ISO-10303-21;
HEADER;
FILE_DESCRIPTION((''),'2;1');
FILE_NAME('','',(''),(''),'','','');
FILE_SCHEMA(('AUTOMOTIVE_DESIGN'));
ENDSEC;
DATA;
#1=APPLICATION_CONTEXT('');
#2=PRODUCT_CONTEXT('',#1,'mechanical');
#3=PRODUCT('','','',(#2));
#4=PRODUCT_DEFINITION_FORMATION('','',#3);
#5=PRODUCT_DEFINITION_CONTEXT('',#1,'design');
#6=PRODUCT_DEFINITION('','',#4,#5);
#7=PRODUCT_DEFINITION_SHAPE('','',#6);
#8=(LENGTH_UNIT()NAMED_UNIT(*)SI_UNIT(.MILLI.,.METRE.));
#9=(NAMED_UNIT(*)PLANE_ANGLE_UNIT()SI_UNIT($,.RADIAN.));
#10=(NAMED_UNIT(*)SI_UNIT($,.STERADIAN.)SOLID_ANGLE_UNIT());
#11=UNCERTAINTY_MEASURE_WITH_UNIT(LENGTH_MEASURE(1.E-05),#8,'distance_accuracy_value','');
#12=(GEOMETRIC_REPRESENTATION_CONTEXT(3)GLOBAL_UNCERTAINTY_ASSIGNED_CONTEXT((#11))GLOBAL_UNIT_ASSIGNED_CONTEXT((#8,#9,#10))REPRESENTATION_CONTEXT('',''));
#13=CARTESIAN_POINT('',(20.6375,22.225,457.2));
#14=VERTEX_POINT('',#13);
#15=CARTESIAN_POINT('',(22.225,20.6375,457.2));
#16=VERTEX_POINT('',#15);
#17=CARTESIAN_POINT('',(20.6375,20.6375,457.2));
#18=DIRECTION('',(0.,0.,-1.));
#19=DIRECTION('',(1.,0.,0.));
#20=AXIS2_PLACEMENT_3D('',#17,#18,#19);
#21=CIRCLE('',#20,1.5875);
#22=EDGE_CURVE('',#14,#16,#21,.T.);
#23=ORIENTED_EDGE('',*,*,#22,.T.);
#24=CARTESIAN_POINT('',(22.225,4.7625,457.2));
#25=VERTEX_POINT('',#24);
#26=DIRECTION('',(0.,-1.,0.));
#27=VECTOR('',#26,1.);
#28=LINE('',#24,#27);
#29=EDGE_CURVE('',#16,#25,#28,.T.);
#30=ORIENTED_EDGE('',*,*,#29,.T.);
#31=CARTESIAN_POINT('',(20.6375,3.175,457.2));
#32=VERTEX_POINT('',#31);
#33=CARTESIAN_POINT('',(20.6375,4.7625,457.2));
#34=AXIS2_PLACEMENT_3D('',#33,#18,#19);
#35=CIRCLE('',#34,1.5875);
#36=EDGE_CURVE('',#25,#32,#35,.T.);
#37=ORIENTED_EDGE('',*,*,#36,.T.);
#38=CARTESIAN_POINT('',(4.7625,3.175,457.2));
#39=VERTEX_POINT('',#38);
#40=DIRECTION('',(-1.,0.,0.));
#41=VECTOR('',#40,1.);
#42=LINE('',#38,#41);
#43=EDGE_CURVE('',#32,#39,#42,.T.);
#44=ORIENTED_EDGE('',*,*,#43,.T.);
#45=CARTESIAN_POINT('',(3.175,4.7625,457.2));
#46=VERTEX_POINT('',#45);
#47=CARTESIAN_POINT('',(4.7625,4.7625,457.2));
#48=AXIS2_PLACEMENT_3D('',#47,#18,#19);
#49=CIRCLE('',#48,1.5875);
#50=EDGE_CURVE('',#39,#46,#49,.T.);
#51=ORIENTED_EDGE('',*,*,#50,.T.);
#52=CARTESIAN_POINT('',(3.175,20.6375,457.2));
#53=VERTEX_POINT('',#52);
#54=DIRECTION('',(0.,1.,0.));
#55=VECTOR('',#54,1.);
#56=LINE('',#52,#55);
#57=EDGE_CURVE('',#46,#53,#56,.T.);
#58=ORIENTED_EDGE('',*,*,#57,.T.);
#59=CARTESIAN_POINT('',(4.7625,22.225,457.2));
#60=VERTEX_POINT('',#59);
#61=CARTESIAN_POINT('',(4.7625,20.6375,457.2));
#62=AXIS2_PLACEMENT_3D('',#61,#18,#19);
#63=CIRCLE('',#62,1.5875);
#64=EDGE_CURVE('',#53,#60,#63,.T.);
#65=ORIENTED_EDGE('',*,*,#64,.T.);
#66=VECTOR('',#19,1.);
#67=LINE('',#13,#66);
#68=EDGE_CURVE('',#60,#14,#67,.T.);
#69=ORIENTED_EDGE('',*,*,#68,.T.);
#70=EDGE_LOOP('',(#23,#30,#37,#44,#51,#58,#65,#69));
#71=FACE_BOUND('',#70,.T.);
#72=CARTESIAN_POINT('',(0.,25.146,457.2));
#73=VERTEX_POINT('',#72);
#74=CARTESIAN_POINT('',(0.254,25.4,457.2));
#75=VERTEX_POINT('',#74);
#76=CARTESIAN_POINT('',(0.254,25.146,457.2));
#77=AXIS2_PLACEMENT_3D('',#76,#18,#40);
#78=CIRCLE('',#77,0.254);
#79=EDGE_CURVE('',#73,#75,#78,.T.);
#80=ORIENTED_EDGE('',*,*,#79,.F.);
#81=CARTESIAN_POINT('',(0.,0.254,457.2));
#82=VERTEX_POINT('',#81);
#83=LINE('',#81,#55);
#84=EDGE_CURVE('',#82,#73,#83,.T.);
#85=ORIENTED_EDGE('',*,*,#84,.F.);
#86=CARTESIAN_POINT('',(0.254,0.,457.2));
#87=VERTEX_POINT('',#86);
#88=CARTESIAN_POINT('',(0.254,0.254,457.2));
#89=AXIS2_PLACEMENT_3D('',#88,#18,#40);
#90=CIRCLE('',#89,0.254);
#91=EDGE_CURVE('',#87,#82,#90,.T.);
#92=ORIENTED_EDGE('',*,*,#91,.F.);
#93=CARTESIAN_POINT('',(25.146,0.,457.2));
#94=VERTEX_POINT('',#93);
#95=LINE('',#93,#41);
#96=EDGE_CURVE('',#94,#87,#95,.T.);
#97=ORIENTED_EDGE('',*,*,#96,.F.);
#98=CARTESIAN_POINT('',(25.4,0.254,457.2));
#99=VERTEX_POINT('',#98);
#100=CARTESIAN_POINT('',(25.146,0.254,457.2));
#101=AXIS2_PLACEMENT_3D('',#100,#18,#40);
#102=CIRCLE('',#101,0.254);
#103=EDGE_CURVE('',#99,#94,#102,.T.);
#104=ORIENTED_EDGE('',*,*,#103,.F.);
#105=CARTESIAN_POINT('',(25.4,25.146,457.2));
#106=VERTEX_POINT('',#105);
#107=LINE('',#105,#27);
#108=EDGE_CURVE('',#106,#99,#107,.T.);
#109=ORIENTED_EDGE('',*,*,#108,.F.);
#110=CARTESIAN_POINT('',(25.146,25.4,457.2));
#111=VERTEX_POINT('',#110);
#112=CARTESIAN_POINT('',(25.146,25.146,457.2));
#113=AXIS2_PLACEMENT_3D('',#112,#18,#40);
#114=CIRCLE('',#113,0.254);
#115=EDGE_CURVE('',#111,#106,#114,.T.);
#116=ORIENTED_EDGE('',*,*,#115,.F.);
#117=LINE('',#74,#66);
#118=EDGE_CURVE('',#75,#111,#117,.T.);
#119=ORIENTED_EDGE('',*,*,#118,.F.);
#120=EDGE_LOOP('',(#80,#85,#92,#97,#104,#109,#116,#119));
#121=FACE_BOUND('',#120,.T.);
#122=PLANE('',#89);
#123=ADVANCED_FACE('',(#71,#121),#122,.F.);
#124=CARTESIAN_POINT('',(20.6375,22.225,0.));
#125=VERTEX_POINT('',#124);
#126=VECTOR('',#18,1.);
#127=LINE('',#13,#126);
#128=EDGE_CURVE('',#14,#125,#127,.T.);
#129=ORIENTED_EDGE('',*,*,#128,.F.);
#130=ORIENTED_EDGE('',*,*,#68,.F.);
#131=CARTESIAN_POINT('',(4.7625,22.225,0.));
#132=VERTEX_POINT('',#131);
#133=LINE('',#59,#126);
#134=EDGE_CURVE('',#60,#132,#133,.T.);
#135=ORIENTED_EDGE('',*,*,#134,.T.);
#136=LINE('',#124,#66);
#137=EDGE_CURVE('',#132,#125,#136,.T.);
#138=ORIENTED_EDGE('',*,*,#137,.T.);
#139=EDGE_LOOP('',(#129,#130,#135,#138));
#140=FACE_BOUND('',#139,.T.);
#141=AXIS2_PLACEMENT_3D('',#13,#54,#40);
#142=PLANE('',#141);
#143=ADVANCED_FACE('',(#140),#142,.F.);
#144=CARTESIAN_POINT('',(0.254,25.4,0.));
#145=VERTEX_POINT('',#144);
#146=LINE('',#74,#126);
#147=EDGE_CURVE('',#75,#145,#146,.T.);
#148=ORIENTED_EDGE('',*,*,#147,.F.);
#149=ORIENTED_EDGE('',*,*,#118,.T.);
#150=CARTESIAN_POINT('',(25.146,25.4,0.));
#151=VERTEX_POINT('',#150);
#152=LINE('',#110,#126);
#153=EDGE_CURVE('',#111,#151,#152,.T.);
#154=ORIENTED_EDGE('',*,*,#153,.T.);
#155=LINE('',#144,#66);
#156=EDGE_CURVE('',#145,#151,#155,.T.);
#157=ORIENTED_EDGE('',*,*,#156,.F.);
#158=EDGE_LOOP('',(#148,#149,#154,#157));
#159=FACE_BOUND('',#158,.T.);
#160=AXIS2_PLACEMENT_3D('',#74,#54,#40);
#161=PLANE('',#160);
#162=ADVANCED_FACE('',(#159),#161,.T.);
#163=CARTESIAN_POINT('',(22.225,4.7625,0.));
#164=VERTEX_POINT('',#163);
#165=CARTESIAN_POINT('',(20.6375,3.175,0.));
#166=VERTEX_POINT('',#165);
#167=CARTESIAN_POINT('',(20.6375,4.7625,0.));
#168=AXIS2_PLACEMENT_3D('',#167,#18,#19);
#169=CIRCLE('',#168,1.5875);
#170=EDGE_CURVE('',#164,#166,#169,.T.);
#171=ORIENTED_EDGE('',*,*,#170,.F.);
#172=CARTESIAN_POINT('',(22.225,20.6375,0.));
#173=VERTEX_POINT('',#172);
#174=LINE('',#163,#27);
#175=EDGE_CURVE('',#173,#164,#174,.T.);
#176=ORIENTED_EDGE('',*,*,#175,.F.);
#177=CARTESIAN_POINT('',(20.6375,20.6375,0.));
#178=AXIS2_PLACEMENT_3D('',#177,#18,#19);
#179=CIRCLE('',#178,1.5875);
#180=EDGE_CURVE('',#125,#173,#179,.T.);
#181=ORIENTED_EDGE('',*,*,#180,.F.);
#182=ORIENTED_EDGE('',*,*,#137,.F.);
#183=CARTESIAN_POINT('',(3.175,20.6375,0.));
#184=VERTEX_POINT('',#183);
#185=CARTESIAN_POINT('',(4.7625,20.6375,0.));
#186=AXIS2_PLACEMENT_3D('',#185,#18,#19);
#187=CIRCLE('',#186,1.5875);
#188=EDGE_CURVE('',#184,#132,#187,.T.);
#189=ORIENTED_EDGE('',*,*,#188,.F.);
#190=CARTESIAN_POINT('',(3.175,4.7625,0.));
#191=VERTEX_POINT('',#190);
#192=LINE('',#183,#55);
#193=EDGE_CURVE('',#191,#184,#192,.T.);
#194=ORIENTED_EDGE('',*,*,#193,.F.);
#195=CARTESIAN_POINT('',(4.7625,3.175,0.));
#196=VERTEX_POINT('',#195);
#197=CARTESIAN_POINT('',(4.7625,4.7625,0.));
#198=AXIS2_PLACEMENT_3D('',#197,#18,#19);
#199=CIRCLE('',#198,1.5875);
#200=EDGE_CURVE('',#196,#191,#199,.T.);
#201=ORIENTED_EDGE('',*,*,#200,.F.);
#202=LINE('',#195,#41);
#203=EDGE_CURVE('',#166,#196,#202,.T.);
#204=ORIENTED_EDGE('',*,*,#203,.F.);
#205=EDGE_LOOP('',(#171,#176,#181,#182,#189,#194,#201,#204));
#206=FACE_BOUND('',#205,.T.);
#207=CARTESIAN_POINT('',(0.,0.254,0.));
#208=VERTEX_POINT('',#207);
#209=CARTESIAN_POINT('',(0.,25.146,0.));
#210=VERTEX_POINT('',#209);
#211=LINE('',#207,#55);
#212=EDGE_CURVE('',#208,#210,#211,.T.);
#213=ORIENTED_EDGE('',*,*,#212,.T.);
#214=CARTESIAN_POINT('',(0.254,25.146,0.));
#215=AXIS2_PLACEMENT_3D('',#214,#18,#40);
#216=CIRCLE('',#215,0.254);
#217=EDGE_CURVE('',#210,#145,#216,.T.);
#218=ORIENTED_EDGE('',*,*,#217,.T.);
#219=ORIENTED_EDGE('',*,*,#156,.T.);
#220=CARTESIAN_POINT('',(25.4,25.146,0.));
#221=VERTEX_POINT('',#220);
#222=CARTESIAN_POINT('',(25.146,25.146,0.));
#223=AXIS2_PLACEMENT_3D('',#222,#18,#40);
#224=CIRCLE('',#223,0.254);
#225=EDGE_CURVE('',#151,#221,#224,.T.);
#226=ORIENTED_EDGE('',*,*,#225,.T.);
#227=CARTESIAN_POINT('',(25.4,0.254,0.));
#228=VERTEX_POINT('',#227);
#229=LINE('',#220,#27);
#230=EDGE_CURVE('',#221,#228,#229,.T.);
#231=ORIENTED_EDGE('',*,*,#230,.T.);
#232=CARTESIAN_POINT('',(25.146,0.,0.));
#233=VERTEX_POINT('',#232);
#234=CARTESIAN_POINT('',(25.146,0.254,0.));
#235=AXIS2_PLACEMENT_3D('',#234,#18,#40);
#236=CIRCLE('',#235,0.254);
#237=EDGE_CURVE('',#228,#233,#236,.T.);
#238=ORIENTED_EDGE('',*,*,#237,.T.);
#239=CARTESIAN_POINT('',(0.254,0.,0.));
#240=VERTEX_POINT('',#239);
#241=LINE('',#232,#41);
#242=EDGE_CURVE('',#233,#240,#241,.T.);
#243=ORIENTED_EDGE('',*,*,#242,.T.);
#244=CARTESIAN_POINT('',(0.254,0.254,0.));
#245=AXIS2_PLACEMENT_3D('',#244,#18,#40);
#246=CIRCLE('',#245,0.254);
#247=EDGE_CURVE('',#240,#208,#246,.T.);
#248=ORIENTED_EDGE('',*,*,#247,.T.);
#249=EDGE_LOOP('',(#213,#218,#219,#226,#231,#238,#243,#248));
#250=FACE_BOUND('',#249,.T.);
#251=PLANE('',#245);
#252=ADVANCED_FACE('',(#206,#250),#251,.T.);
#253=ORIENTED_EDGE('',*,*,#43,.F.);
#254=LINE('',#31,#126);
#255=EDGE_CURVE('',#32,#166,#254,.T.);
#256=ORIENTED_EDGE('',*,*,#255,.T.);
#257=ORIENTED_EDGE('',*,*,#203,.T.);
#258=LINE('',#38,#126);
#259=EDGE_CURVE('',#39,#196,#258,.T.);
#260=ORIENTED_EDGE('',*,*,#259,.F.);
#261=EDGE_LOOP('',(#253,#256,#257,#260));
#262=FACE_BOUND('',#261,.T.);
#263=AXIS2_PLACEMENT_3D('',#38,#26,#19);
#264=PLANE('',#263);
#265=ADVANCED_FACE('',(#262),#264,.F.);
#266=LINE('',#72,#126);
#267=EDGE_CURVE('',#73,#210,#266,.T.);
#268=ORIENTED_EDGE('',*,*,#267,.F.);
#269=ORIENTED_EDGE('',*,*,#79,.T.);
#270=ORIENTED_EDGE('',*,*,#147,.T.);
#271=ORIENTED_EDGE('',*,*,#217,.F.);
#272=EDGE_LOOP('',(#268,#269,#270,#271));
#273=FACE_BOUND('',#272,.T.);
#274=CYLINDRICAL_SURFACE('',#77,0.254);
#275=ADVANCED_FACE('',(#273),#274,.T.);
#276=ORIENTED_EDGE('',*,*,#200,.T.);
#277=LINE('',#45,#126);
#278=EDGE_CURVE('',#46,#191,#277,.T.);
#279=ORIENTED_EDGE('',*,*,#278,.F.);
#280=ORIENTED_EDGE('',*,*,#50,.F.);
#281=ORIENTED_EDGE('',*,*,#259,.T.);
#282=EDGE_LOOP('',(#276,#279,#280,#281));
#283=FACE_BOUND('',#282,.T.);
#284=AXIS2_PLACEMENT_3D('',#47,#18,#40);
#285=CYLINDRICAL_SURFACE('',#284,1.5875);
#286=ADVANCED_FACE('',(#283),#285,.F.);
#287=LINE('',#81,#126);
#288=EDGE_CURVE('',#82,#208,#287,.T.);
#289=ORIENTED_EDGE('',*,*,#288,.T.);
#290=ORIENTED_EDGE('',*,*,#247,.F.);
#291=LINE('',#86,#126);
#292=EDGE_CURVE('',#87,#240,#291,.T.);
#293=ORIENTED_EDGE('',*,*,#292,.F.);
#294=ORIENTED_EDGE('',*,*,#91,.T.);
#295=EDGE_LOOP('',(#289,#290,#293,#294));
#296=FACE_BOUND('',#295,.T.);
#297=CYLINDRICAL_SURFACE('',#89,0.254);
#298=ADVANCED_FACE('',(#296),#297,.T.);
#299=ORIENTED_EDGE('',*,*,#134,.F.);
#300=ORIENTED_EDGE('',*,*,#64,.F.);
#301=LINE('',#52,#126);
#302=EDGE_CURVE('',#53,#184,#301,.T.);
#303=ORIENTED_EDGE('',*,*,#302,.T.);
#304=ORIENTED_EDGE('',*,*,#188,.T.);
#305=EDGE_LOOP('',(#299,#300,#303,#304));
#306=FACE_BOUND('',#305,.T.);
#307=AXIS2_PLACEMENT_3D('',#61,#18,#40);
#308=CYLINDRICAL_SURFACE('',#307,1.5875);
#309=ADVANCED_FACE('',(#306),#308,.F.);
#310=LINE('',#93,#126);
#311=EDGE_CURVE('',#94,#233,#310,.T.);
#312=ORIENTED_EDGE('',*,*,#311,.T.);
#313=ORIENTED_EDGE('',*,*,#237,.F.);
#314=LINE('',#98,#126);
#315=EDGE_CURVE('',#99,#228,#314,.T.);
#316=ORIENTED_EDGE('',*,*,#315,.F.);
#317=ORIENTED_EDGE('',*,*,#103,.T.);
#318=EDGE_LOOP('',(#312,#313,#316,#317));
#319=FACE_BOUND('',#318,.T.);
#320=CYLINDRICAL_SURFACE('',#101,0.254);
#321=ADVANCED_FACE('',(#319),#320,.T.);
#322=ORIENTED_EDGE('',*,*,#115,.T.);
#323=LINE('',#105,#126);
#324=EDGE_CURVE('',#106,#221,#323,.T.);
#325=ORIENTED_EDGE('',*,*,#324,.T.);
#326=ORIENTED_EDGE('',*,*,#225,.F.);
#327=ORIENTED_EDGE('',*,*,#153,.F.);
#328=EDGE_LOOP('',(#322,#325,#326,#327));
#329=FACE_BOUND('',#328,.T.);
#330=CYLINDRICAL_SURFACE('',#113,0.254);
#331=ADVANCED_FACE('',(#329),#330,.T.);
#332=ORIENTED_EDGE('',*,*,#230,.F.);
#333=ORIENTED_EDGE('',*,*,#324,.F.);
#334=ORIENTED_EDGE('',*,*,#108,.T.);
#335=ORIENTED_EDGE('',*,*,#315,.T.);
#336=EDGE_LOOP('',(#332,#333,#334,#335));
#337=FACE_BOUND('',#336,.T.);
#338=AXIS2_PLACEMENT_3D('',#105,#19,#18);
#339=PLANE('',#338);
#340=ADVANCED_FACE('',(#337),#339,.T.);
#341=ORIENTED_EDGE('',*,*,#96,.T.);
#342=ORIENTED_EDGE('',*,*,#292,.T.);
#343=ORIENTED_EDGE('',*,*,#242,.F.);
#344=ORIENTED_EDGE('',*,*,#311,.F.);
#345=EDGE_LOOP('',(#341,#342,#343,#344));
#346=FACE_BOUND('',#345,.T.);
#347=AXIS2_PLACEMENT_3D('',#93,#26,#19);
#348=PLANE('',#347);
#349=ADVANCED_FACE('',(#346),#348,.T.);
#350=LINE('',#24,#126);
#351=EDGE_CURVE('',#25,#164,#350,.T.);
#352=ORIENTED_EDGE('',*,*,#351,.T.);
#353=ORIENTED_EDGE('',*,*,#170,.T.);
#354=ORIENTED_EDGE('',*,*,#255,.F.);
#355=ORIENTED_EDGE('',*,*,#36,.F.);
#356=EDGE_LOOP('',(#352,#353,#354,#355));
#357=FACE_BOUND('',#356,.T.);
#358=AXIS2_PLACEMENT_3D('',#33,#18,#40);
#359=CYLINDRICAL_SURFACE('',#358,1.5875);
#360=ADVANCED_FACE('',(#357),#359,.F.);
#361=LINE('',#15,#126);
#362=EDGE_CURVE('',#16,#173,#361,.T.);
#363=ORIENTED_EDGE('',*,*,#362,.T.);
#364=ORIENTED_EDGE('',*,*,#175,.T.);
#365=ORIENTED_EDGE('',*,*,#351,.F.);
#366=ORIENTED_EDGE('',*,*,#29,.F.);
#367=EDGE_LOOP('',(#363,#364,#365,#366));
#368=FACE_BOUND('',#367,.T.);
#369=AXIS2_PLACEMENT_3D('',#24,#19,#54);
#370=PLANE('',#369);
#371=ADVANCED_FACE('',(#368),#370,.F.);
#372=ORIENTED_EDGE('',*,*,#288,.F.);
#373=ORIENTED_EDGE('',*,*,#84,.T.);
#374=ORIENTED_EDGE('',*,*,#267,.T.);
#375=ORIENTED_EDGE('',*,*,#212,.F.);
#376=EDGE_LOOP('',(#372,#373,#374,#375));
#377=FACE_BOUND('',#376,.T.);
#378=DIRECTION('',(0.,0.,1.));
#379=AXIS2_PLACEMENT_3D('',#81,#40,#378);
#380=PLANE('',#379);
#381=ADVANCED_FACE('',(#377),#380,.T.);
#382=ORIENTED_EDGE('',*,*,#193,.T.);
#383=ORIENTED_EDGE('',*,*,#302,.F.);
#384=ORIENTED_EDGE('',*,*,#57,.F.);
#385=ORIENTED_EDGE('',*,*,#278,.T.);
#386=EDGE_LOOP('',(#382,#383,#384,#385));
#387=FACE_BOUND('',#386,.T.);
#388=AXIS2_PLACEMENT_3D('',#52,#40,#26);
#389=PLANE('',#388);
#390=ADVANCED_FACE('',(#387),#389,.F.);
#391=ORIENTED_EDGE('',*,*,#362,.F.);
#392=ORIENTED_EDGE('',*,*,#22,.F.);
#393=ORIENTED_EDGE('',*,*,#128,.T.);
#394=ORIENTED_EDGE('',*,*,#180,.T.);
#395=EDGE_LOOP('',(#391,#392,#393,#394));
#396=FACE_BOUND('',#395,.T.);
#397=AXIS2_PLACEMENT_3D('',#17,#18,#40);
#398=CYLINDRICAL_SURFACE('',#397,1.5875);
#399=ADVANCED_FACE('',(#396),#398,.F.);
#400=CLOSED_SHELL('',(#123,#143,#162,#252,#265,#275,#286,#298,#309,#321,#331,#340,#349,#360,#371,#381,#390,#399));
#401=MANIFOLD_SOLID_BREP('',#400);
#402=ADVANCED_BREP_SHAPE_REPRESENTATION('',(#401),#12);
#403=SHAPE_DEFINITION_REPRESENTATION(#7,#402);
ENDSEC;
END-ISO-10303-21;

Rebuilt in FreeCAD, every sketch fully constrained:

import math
import FreeCAD as App
import Part
import Sketcher
Q = App.Units.Quantity

doc = App.newDocument("Part")
params = doc.addObject("Spreadsheet::Sheet", "Params")
for row, (alias, value) in enumerate([
    ("sketch1_radius", "0.01 in"),
    ("sketch1_radius2", "0.0625 in"),
    ("sketch1_width", "0.625 in"),
    ("pad1_length", "18 in"),
], start=1):
    params.set(f"A{row}", alias)
    params.set(f"B{row}", "=" + value)
    params.setAlias(f"B{row}", alias)

body = doc.addObject("PartDesign::Body", "Body")

# Sketch on XY plane
sketch1 = body.newObject("Sketcher::SketchObject", "Sketch")
sketch1.AttachmentSupport = (doc.getObject("XY_Plane"), [""])
sketch1.MapMode = "FlatFace"
sketch1.addGeometry(Part.LineSegment(App.Vector(0, 0.25, 0), App.Vector(0, 25.15, 0)), False)
sketch1.addGeometry(Part.ArcOfCircle(Part.Circle(App.Vector(0.25, 25.15, 0), App.Vector(0, 0, 1), 0.25), math.radians(90), math.radians(180)), False)
sketch1.addGeometry(Part.LineSegment(App.Vector(0.25, 25.4, 0), App.Vector(25.15, 25.4, 0)), False)
sketch1.addGeometry(Part.ArcOfCircle(Part.Circle(App.Vector(25.15, 25.15, 0), App.Vector(0, 0, 1), 0.25), math.radians(0), math.radians(90)), False)
sketch1.addGeometry(Part.LineSegment(App.Vector(25.4, 25.15, 0), App.Vector(25.4, 0.25, 0)), False)
sketch1.addGeometry(Part.ArcOfCircle(Part.Circle(App.Vector(25.15, 0.25, 0), App.Vector(0, 0, 1), 0.25), math.radians(-90), math.radians(0)), False)
sketch1.addGeometry(Part.LineSegment(App.Vector(25.15, 0, 0), App.Vector(0.25, 0, 0)), False)
sketch1.addGeometry(Part.ArcOfCircle(Part.Circle(App.Vector(0.25, 0.25, 0), App.Vector(0, 0, 1), 0.25), math.radians(-180), math.radians(-90)), False)
sketch1.addGeometry(Part.ArcOfCircle(Part.Circle(App.Vector(4.76, 20.64, 0), App.Vector(0, 0, 1), 1.59), math.radians(90), math.radians(180)), False)
sketch1.addGeometry(Part.LineSegment(App.Vector(3.17, 20.64, 0), App.Vector(3.17, 4.76, 0)), False)
sketch1.addGeometry(Part.ArcOfCircle(Part.Circle(App.Vector(4.76, 4.76, 0), App.Vector(0, 0, 1), 1.59), math.radians(180), math.radians(270)), False)
sketch1.addGeometry(Part.LineSegment(App.Vector(4.76, 3.17, 0), App.Vector(20.64, 3.17, 0)), False)
sketch1.addGeometry(Part.ArcOfCircle(Part.Circle(App.Vector(20.64, 4.76, 0), App.Vector(0, 0, 1), 1.59), math.radians(-90), math.radians(0)), False)
sketch1.addGeometry(Part.LineSegment(App.Vector(22.23, 4.76, 0), App.Vector(22.23, 20.64, 0)), False)
sketch1.addGeometry(Part.ArcOfCircle(Part.Circle(App.Vector(20.64, 20.64, 0), App.Vector(0, 0, 1), 1.59), math.radians(0), math.radians(90)), False)
sketch1.addGeometry(Part.LineSegment(App.Vector(20.64, 22.23, 0), App.Vector(4.76, 22.23, 0)), False)
sketch1.addConstraint(Sketcher.Constraint("Tangent", 0, 2, 1, 2))
sketch1.addConstraint(Sketcher.Constraint("Tangent", 1, 1, 2, 1))
sketch1.addConstraint(Sketcher.Constraint("Tangent", 2, 2, 3, 2))
sketch1.addConstraint(Sketcher.Constraint("Tangent", 3, 1, 4, 1))
sketch1.addConstraint(Sketcher.Constraint("Tangent", 4, 2, 5, 2))
sketch1.addConstraint(Sketcher.Constraint("Tangent", 5, 1, 6, 1))
sketch1.addConstraint(Sketcher.Constraint("Tangent", 6, 2, 7, 2))
sketch1.addConstraint(Sketcher.Constraint("Tangent", 7, 1, 0, 1))
sketch1.addConstraint(Sketcher.Constraint("Tangent", 8, 2, 9, 1))
sketch1.addConstraint(Sketcher.Constraint("Tangent", 9, 2, 10, 1))
sketch1.addConstraint(Sketcher.Constraint("Tangent", 10, 2, 11, 1))
sketch1.addConstraint(Sketcher.Constraint("Tangent", 11, 2, 12, 1))
sketch1.addConstraint(Sketcher.Constraint("Tangent", 12, 2, 13, 1))
sketch1.addConstraint(Sketcher.Constraint("Tangent", 13, 2, 14, 1))
sketch1.addConstraint(Sketcher.Constraint("Tangent", 14, 2, 15, 1))
sketch1.addConstraint(Sketcher.Constraint("Tangent", 15, 2, 8, 1))
sketch1.addConstraint(Sketcher.Constraint("Vertical", 0))
sketch1.addConstraint(Sketcher.Constraint("Horizontal", 2))
sketch1.addConstraint(Sketcher.Constraint("Vertical", 4))
sketch1.addConstraint(Sketcher.Constraint("Horizontal", 6))
sketch1.addConstraint(Sketcher.Constraint("Vertical", 9))
sketch1.addConstraint(Sketcher.Constraint("Horizontal", 11))
sketch1.addConstraint(Sketcher.Constraint("Vertical", 13))
sketch1.addConstraint(Sketcher.Constraint("Horizontal", 15))
sketch1.addConstraint(Sketcher.Constraint("Equal", 1, 3))
sketch1.addConstraint(Sketcher.Constraint("Equal", 3, 5))
sketch1.addConstraint(Sketcher.Constraint("Equal", 5, 7))
sketch1.addConstraint(Sketcher.Constraint("Equal", 8, 10))
sketch1.addConstraint(Sketcher.Constraint("Equal", 10, 12))
sketch1.addConstraint(Sketcher.Constraint("Equal", 12, 14))
sketch1.addConstraint(Sketcher.Constraint("PointOnObject", 0, 2, -2))
sketch1.addConstraint(Sketcher.Constraint("PointOnObject", 5, 1, -1))
sketch1.addConstraint(Sketcher.Constraint("Equal", 6, 0))
sketch1.addConstraint(Sketcher.Constraint("Equal", 15, 9))
sketch1.addConstraint(Sketcher.Constraint("Radius", 1, Q("0.01 in")))
sketch1.addConstraint(Sketcher.Constraint("DistanceY", -1, 1, 1, 1, Q("1 in")))
sketch1.addConstraint(Sketcher.Constraint("Radius", 8, Q("0.0625 in")))
sketch1.addConstraint(Sketcher.Constraint("DistanceX", 11, 1, 11, 2, Q("0.625 in")))
sketch1.addConstraint(Sketcher.Constraint("DistanceX", -1, 1, 8, 3, Q("0.1875 in")))
sketch1.addConstraint(Sketcher.Constraint("DistanceY", -1, 1, 8, 3, Q("0.8125 in")))
sketch1.setExpression("Constraints[34]", "Params.sketch1_radius")
sketch1.setExpression("Constraints[36]", "Params.sketch1_radius2")
sketch1.setExpression("Constraints[37]", "Params.sketch1_width")
pad1 = body.newObject("PartDesign::Pad", "Pad")
pad1.Profile = sketch1
pad1.setExpression("Length", "Params.pad1_length")

doc.recompute()
